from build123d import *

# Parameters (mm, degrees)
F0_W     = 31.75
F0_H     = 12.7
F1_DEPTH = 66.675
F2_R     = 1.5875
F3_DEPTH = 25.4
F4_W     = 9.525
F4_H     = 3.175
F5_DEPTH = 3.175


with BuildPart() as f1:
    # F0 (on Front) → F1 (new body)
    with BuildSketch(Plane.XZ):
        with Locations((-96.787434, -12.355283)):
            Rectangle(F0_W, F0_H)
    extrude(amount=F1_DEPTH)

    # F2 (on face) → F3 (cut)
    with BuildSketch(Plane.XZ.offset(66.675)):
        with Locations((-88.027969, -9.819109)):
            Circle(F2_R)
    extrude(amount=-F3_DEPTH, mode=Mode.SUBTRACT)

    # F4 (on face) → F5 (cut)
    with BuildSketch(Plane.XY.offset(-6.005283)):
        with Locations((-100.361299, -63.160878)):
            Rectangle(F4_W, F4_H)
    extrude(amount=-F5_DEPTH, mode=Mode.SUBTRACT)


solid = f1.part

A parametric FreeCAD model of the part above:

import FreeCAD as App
import Part
import Sketcher
from FreeCAD import Vector
Q = App.Units.Quantity

doc = App.newDocument("Part")
body = doc.addObject("PartDesign::Body", "Body")

sketch1 = body.newObject("Sketcher::SketchObject", "Sketch")
sketch1.AttachmentSupport = (doc.getObject("XZ_Plane"), [""])
sketch1.MapMode = "FlatFace"
sketch1.addGeometry([
    Part.LineSegment(Vector(-112.662434, -6.005283, 0), Vector(-112.662434, -18.705283, 0)),
    Part.LineSegment(Vector(-112.662434, -18.705283, 0), Vector(-80.912434, -18.705283, 0)),
    Part.LineSegment(Vector(-80.912434, -18.705283, 0), Vector(-80.912434, -6.005283, 0)),
    Part.LineSegment(Vector(-80.912434, -6.005283, 0), Vector(-112.662434, -6.005283, 0)),
], False)
sketch1.addConstraint([
    Sketcher.Constraint("Coincident", 0, 2, 1, 1),
    Sketcher.Constraint("Coincident", 1, 2, 2, 1),
    Sketcher.Constraint("Coincident", 2, 2, 3, 1),
    Sketcher.Constraint("Coincident", 3, 2, 0, 1),
    Sketcher.Constraint("Vertical", 0),
    Sketcher.Constraint("Horizontal", 1),
    Sketcher.Constraint("Vertical", 2),
    Sketcher.Constraint("Horizontal", 3),
    Sketcher.Constraint("DistanceY", 0, 2, 0, 1, Q("0.5 in")),
    Sketcher.Constraint("DistanceX", 1, 1, 1, 2, Q("1.25 in")),
    Sketcher.Constraint("DistanceX", 0, 2, -1, 1, 112.662434),
    Sketcher.Constraint("DistanceY", 0, 2, -1, 1, 18.705283),
])
pad1 = body.newObject("PartDesign::Pad", "Pad")
pad1.Profile = sketch1
pad1.Length = Q("2.625 in")

sketch2 = body.newObject("Sketcher::SketchObject", "Sketch001")
sketch2.AttachmentSupport = (doc.getObject("XZ_Plane"), [""])
sketch2.MapMode = "FlatFace"
sketch2.AttachmentOffset = App.Placement(Vector(0, 0, 2.625 * 25.4), App.Rotation())
sketch2.addGeometry(Part.Circle(Vector(-88.027969, -9.819109, 0), Vector(0, 0, 1), 1.5875), False)
sketch2.addConstraint([
    Sketcher.Constraint("Diameter", 0, Q("0.125 in")),
    Sketcher.Constraint("DistanceX", 0, 3, -1, 1, 88.027969),
    Sketcher.Constraint("DistanceY", 0, 3, -1, 1, 9.819109),
])
pocket1 = body.newObject("PartDesign::Pocket", "Pocket")
pocket1.Profile = sketch2
pocket1.Length = Q("1 in")

sketch3 = body.newObject("Sketcher::SketchObject", "Sketch002")
sketch3.AttachmentSupport = (doc.getObject("XY_Plane"), [""])
sketch3.MapMode = "FlatFace"
sketch3.AttachmentOffset = App.Placement(Vector(0, 0, -6.005283), App.Rotation())
sketch3.addGeometry([
    Part.LineSegment(Vector(-105.123799, -61.573378, 0), Vector(-105.123799, -64.748378, 0)),
    Part.LineSegment(Vector(-105.123799, -64.748378, 0), Vector(-95.598799, -64.748378, 0)),
    Part.LineSegment(Vector(-95.598799, -64.748378, 0), Vector(-95.598799, -61.573378, 0)),
    Part.LineSegment(Vector(-95.598799, -61.573378, 0), Vector(-105.123799, -61.573378, 0)),
], False)
sketch3.addConstraint([
    Sketcher.Constraint("Coincident", 0, 2, 1, 1),
    Sketcher.Constraint("Coincident", 1, 2, 2, 1),
    Sketcher.Constraint("Coincident", 2, 2, 3, 1),
    Sketcher.Constraint("Coincident", 3, 2, 0, 1),
    Sketcher.Constraint("Vertical", 0),
    Sketcher.Constraint("Horizontal", 1),
    Sketcher.Constraint("Vertical", 2),
    Sketcher.Constraint("Horizontal", 3),
    Sketcher.Constraint("DistanceX", 1, 1, 1, 2, Q("0.375 in")),
    Sketcher.Constraint("DistanceY", 0, 2, 0, 1, Q("0.125 in")),
    Sketcher.Constraint("DistanceX", 0, 2, -1, 1, 105.123799),
    Sketcher.Constraint("DistanceY", 0, 2, -1, 1, 64.748378),
])
pocket2 = body.newObject("PartDesign::Pocket", "Pocket001")
pocket2.Profile = sketch3
pocket2.Length = Q("0.125 in")

doc.recompute()
